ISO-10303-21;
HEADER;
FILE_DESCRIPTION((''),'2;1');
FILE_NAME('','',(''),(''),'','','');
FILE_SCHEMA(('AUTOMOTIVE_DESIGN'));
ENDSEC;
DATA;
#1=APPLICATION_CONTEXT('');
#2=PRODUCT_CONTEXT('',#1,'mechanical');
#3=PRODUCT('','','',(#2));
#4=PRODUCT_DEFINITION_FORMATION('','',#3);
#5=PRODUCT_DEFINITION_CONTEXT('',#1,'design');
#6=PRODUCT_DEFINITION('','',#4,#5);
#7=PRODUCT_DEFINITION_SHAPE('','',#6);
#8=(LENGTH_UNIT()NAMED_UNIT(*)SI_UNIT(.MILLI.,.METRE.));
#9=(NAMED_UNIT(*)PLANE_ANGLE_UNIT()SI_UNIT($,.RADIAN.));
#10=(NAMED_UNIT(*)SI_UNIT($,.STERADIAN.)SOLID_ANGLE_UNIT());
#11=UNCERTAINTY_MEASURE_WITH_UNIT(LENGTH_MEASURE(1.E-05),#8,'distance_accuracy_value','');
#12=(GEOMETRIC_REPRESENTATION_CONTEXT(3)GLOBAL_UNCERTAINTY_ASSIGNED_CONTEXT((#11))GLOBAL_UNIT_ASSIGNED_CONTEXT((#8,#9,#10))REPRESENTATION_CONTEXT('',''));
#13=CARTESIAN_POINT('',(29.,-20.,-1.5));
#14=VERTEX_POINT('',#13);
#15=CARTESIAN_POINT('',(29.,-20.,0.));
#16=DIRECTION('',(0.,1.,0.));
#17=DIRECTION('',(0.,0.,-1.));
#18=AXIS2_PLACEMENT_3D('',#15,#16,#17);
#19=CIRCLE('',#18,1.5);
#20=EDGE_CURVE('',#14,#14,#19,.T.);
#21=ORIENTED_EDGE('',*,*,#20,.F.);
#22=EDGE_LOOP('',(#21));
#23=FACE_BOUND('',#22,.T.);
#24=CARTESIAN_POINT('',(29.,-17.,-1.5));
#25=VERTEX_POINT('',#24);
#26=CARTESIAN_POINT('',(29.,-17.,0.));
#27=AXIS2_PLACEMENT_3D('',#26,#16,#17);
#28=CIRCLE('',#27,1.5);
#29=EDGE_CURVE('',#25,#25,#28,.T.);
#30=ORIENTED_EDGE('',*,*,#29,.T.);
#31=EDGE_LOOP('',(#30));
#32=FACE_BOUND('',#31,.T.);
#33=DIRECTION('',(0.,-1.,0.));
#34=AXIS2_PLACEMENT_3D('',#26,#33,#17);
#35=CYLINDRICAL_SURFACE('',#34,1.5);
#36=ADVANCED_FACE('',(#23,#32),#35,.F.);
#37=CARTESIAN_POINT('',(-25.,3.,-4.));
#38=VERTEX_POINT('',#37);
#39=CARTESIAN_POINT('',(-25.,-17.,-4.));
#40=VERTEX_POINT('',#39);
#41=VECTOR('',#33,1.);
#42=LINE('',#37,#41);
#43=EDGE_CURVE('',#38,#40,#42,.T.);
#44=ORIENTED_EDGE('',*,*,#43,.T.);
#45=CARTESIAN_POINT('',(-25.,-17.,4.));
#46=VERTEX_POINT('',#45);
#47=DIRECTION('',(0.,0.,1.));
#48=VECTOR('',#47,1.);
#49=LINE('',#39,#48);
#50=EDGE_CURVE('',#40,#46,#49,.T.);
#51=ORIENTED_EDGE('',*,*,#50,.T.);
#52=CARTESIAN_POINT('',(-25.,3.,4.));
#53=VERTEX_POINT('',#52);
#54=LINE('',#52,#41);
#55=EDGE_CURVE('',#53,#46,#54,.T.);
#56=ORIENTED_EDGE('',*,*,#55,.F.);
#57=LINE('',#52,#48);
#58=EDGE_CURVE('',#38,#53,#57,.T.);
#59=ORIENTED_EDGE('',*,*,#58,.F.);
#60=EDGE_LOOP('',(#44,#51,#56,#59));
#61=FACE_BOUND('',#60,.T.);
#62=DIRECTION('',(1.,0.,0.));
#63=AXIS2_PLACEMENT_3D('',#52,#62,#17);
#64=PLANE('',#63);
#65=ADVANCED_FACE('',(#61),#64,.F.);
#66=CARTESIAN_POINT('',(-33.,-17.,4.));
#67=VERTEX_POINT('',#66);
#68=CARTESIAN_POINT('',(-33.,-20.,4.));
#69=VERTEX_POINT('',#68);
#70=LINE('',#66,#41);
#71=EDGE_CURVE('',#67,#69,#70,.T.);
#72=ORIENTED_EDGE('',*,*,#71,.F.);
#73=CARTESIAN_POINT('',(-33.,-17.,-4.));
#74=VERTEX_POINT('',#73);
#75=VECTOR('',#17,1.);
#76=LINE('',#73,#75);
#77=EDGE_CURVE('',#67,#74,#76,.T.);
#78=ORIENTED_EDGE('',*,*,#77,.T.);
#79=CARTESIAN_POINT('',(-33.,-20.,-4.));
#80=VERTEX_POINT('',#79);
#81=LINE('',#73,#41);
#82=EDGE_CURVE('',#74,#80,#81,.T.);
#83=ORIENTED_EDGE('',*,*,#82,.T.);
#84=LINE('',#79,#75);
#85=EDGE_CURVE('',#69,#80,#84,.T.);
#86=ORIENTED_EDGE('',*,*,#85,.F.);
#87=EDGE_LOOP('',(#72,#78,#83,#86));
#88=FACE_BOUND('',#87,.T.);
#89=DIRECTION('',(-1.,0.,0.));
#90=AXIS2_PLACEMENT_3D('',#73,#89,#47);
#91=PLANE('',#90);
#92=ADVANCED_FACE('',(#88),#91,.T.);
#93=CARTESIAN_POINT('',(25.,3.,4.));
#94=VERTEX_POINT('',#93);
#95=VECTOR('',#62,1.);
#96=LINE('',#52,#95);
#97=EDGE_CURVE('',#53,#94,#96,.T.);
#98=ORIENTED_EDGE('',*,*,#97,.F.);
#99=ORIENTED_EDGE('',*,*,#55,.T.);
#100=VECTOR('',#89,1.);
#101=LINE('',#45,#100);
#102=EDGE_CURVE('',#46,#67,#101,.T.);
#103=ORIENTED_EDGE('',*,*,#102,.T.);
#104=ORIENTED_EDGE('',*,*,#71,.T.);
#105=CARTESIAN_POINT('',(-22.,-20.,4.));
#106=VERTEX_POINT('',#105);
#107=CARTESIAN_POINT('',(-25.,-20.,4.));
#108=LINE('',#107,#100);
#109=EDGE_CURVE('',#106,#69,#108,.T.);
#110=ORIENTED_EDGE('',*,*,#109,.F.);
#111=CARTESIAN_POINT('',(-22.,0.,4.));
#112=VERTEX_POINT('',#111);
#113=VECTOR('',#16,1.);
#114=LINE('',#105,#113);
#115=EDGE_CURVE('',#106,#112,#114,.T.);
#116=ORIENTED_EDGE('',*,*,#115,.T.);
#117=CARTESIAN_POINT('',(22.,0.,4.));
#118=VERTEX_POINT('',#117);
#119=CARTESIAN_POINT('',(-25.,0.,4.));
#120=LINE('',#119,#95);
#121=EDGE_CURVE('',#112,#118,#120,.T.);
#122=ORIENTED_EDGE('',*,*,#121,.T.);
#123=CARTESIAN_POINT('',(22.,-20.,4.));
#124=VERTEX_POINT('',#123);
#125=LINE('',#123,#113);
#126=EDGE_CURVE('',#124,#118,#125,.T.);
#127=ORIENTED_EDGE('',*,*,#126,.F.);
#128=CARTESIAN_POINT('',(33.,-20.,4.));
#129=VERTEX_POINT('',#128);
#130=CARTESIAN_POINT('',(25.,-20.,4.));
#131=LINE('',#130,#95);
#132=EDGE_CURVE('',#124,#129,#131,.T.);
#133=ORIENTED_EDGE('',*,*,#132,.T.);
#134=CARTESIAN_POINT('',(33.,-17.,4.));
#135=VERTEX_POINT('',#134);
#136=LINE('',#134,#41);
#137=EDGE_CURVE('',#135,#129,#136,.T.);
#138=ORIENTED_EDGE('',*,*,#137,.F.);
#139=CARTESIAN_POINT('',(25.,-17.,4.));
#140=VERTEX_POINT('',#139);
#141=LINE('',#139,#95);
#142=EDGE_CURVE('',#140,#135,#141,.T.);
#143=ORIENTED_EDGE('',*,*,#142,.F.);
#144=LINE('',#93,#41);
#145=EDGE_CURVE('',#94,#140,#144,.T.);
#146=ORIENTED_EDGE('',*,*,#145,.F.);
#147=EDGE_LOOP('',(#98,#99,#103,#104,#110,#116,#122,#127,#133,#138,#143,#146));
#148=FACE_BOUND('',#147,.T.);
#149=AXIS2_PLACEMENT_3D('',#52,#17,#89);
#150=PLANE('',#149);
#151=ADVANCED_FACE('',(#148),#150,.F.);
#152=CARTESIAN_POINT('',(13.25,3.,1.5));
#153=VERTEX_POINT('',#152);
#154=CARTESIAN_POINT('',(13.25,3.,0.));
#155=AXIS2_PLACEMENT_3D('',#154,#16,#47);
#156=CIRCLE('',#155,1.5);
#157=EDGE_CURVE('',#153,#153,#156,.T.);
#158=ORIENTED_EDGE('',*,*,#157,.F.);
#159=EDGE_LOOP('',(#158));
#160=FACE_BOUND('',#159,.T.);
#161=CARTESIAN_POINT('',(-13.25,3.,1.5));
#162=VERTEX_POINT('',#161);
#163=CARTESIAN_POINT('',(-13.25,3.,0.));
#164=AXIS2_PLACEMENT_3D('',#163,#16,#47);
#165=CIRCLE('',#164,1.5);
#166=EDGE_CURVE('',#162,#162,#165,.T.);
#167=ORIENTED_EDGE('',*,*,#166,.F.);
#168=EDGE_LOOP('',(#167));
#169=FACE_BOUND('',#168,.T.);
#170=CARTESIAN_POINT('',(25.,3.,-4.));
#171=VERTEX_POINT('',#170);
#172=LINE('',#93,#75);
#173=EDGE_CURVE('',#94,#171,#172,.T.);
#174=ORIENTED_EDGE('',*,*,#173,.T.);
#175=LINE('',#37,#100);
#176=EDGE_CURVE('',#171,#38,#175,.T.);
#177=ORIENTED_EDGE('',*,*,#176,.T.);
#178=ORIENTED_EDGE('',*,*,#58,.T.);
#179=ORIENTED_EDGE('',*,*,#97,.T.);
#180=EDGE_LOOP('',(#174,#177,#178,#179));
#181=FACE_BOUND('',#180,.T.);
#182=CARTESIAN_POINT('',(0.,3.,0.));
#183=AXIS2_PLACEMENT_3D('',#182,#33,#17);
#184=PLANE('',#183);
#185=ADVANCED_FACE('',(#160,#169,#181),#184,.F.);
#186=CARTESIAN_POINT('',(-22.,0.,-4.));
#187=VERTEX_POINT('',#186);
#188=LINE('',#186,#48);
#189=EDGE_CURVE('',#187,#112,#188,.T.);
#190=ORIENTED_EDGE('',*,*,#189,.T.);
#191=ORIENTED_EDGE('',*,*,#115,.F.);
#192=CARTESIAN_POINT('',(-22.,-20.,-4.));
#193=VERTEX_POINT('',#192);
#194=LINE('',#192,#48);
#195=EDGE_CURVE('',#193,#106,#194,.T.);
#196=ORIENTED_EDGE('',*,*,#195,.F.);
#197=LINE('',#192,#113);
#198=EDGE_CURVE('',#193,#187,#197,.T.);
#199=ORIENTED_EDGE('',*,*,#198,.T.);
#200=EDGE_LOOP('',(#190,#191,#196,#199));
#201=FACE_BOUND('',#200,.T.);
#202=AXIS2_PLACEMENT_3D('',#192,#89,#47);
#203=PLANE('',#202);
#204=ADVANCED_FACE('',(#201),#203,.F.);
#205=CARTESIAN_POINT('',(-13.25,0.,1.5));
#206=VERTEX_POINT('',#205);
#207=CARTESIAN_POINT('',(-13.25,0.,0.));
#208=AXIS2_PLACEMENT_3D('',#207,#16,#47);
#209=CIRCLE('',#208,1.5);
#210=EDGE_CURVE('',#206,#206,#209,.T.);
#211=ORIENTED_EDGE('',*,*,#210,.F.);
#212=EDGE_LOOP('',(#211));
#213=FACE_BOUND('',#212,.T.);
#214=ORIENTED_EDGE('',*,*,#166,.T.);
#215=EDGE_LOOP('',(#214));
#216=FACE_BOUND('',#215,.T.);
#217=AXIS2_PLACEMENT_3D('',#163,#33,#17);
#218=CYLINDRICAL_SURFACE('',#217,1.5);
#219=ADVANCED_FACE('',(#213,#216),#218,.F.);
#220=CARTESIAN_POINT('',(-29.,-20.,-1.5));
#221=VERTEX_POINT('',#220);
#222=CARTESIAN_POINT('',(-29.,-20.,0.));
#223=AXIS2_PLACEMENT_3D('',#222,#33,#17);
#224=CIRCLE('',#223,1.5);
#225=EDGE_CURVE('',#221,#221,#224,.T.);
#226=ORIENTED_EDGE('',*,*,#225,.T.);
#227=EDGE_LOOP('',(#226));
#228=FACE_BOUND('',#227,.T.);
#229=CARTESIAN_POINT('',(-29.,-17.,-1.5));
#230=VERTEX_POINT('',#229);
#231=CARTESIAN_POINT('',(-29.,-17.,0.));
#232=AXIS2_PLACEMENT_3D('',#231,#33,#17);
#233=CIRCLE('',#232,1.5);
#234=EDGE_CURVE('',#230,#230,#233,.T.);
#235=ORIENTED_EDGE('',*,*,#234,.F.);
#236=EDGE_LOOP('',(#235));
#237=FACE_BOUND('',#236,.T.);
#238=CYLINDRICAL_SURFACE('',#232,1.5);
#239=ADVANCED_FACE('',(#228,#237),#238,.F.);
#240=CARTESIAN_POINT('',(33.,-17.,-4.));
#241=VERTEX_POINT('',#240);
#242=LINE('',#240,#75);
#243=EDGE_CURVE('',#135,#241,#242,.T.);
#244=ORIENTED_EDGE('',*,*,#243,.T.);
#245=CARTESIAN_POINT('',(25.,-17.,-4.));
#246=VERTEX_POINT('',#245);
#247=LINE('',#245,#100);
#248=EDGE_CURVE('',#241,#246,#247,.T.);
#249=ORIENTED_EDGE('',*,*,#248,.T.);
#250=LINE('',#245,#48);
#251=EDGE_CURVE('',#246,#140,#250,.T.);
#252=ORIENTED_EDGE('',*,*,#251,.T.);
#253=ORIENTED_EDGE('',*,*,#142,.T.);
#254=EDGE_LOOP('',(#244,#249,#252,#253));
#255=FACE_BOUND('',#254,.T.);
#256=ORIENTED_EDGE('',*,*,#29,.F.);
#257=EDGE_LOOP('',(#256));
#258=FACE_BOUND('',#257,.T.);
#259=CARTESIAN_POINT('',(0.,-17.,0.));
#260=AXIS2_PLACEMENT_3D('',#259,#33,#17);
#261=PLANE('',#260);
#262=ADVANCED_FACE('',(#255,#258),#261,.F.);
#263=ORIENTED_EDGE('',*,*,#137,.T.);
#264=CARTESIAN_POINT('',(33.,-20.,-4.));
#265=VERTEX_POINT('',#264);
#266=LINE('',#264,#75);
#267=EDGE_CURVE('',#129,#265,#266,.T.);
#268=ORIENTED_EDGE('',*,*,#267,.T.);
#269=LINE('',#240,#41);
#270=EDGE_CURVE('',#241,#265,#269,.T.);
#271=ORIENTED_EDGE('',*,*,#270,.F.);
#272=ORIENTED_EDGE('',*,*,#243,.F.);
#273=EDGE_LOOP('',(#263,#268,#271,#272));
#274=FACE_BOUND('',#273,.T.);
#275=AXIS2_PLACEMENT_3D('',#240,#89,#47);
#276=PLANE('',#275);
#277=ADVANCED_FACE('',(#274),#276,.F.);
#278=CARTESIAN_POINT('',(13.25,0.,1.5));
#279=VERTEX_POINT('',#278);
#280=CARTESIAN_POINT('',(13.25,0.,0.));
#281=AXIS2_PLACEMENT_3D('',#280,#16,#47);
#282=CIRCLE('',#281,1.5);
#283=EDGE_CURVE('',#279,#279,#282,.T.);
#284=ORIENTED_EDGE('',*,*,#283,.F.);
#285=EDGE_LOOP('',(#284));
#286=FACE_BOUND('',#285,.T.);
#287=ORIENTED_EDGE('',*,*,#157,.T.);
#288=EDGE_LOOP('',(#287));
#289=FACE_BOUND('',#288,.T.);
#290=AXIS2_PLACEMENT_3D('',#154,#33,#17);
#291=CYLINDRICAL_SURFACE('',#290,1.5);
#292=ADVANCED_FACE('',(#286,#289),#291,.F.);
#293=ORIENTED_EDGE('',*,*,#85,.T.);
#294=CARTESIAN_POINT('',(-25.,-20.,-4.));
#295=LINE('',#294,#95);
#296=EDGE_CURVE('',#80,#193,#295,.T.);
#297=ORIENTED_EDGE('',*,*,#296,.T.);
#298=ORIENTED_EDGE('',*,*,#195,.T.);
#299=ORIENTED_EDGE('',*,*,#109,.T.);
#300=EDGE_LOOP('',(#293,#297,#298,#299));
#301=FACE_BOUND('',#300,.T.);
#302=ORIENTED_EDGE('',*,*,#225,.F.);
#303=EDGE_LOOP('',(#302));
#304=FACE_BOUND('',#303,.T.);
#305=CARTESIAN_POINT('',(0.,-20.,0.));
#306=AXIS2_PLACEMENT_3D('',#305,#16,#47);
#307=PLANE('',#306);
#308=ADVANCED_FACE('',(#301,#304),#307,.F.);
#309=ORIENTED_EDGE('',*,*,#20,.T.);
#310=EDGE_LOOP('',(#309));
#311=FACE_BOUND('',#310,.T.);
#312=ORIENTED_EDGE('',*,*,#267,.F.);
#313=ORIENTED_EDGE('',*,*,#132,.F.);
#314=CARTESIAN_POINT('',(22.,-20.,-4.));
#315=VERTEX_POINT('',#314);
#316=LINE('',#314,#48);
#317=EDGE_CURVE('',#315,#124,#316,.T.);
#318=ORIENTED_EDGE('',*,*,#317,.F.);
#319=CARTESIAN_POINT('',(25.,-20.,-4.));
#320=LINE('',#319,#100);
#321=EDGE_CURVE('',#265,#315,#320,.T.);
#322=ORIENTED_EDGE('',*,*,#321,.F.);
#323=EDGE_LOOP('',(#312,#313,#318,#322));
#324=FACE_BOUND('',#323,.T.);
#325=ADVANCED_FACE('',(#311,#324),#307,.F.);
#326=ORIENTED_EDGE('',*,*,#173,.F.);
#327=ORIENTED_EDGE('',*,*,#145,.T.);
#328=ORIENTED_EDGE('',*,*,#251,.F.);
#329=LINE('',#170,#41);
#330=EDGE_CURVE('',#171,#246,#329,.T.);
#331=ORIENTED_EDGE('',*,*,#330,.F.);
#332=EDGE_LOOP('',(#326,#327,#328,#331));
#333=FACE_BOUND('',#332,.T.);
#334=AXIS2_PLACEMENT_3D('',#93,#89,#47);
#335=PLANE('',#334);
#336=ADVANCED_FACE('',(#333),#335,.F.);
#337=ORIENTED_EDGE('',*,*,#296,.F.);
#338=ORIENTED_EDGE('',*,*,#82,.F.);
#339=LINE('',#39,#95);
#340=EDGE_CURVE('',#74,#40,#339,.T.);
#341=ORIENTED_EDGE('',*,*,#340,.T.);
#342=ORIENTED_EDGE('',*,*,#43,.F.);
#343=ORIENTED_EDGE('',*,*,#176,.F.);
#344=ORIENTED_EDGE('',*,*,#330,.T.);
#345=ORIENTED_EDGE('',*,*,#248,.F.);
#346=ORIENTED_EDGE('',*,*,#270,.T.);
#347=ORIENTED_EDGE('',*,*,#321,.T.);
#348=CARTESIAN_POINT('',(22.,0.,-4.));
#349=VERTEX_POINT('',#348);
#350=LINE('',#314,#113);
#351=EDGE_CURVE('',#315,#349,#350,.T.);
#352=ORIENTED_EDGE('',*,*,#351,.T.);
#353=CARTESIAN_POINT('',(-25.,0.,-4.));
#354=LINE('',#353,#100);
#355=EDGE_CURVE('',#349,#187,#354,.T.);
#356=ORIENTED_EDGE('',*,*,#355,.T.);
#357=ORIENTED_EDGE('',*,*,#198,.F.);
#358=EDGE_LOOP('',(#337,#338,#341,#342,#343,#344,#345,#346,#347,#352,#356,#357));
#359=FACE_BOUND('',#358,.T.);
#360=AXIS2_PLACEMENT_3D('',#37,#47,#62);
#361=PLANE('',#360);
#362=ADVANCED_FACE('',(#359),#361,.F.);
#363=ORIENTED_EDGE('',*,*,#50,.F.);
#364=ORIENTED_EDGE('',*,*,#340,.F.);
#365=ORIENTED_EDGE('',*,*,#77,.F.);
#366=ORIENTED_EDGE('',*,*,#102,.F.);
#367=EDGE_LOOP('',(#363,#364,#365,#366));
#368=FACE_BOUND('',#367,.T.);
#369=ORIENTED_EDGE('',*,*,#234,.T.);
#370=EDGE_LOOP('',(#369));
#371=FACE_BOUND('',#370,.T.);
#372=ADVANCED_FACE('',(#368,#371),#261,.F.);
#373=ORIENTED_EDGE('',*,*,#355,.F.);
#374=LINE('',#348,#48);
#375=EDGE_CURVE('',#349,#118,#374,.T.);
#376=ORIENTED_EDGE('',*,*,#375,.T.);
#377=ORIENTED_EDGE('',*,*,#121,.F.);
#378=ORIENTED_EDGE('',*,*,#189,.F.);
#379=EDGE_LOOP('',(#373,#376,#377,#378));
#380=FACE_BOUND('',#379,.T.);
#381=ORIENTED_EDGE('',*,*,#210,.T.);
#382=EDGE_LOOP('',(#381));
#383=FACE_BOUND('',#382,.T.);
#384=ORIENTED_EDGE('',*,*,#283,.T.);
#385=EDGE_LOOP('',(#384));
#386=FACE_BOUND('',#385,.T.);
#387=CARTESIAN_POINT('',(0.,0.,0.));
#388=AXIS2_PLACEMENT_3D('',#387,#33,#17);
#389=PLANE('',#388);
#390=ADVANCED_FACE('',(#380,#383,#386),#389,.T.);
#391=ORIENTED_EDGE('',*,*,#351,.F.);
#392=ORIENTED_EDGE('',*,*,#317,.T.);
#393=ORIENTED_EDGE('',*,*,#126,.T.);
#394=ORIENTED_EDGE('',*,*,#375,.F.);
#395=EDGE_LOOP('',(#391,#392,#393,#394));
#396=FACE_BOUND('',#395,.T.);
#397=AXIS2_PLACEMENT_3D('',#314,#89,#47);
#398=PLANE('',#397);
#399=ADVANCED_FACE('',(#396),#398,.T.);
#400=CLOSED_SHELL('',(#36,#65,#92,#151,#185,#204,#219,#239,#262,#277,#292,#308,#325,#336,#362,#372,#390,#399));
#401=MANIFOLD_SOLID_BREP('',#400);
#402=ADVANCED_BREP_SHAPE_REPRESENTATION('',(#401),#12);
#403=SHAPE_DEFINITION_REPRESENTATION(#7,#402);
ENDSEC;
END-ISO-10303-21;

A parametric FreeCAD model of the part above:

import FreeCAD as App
import Part
import Sketcher
from FreeCAD import Vector


def add_polygon(sketch, points):
    """Adds a closed chain of lines whose ends are joined by coincident constraints."""
    first, n = sketch.GeometryCount, len(points)
    for a, b in zip(points, points[1:] + points[:1]):
        sketch.addGeometry(Part.LineSegment(App.Vector(*a, 0), App.Vector(*b, 0)), False)
    for i in range(n):
        sketch.addConstraint(Sketcher.Constraint("Coincident", first + i, 2, first + (i + 1) % n, 1))

doc = App.newDocument("Part")
body = doc.addObject("PartDesign::Body", "Body")

# Sketch on XZ plane
sketch1 = doc.addObject("Sketcher::SketchObject", "Sketch")
body.addObject(sketch1)
sketch1.AttachmentSupport = (doc.XZ_Plane, [""])
sketch1.MapMode = "FlatFace"
add_polygon(sketch1, [(-25, -4), (-25, 4), (25, 4), (25, -4)])  # lines 0-3
sketch1.addGeometry(Part.Circle(Vector(-13.2, 0, 0), Vector(0, 0, 1), 1.5), False)  # 4
sketch1.addGeometry(Part.Circle(Vector(13.2, 0, 0), Vector(0, 0, 1), 1.5), False)  # 5
sketch1.addConstraint([
    Sketcher.Constraint("Vertical", 0),
    Sketcher.Constraint("Horizontal", 1),
    Sketcher.Constraint("Vertical", 2),
    Sketcher.Constraint("Horizontal", 3),
    Sketcher.Constraint("Equal", 4, 5),
    Sketcher.Constraint("Symmetric", 4, 3, 5, 3, -1, 1),
    Sketcher.Constraint("Symmetric", 0, 2, 2, 2, -1, 1),
    Sketcher.Constraint("PointOnObject", 4, 3, -1),
    Sketcher.Constraint("Diameter", 4, 3.0),
    Sketcher.Constraint("DistanceX", 1, 1, 1, 2, 50.0),
    Sketcher.Constraint("DistanceY", 0, 1, 0, 2, 8.0),
    Sketcher.Constraint("DistanceX", 4, 3, 5, 3, 26.5),
])
pad1 = doc.addObject("PartDesign::Pad", "Pad")
body.addObject(pad1)
pad1.Profile = sketch1
pad1.Length = 3
pad1.Reversed = True

# Sketch on XZ plane
sketch2 = doc.addObject("Sketcher::SketchObject", "Sketch001")
body.addObject(sketch2)
sketch2.AttachmentSupport = (doc.XZ_Plane, [""])
sketch2.MapMode = "FlatFace"
add_polygon(sketch2, [(-25, 4), (-25, -4), (-22, -4), (-22, 4)])  # lines 0-3
sketch2.addConstraint([
    Sketcher.Constraint("Vertical", 0),
    Sketcher.Constraint("Horizontal", 1),
    Sketcher.Constraint("Vertical", 2),
    Sketcher.Constraint("Horizontal", 3),
    Sketcher.Constraint("DistanceX", 1, 1, 1, 2, 3.0),
    Sketcher.Constraint("DistanceY", 0, 2, 0, 1, 8.0),
    Sketcher.Constraint("DistanceX", 0, 2, -1, 1, 25.0),
    Sketcher.Constraint("DistanceY", 0, 2, -1, 1, 4.0),
])
pad2 = doc.addObject("PartDesign::Pad", "Pad001")
body.addObject(pad2)
pad2.Profile = sketch2
pad2.Length = 20

# Sketch on XZ plane
sketch3 = doc.addObject("Sketcher::SketchObject", "Sketch002")
body.addObject(sketch3)
sketch3.AttachmentSupport = (doc.XZ_Plane, [""])
sketch3.MapMode = "FlatFace"
sketch3.AttachmentOffset = App.Placement(Vector(0, 0, 20), App.Rotation())
add_polygon(sketch3, [(-25, -4), (-25, 4), (-33, 4), (-33, -4)])  # lines 0-3
sketch3.addGeometry(Part.Circle(Vector(-29, 0, 0), Vector(0, 0, 1), 1.5), False)  # 4
sketch3.addConstraint([
    Sketcher.Constraint("Vertical", 0),
    Sketcher.Constraint("Horizontal", 1),
    Sketcher.Constraint("Vertical", 2),
    Sketcher.Constraint("Horizontal", 3),
    Sketcher.Constraint("PointOnObject", 4, 3, -1),
    Sketcher.Constraint("Equal", 3, 0),
    Sketcher.Constraint("Diameter", 4, 3.0),
    Sketcher.Constraint("DistanceX", 1, 2, 1, 1, 8.0),
    Sketcher.Constraint("DistanceX", 4, 3, -1, 1, 29.0),
    Sketcher.Constraint("DistanceX", 0, 2, -1, 1, 25.0),
    Sketcher.Constraint("DistanceY", -1, 1, 0, 2, 4.0),
])
pad3 = doc.addObject("PartDesign::Pad", "Pad002")
body.addObject(pad3)
pad3.Profile = sketch3
pad3.Length = 3
pad3.Reversed = True
doc.recompute()

mirrored = doc.addObject("PartDesign::Mirrored", "Mirrored")
body.addObject(mirrored)
mirrored.Originals = [pad2, pad3]
mirrored.MirrorPlane = (doc.YZ_Plane, [""])
body.Tip = mirrored

doc.recompute()
